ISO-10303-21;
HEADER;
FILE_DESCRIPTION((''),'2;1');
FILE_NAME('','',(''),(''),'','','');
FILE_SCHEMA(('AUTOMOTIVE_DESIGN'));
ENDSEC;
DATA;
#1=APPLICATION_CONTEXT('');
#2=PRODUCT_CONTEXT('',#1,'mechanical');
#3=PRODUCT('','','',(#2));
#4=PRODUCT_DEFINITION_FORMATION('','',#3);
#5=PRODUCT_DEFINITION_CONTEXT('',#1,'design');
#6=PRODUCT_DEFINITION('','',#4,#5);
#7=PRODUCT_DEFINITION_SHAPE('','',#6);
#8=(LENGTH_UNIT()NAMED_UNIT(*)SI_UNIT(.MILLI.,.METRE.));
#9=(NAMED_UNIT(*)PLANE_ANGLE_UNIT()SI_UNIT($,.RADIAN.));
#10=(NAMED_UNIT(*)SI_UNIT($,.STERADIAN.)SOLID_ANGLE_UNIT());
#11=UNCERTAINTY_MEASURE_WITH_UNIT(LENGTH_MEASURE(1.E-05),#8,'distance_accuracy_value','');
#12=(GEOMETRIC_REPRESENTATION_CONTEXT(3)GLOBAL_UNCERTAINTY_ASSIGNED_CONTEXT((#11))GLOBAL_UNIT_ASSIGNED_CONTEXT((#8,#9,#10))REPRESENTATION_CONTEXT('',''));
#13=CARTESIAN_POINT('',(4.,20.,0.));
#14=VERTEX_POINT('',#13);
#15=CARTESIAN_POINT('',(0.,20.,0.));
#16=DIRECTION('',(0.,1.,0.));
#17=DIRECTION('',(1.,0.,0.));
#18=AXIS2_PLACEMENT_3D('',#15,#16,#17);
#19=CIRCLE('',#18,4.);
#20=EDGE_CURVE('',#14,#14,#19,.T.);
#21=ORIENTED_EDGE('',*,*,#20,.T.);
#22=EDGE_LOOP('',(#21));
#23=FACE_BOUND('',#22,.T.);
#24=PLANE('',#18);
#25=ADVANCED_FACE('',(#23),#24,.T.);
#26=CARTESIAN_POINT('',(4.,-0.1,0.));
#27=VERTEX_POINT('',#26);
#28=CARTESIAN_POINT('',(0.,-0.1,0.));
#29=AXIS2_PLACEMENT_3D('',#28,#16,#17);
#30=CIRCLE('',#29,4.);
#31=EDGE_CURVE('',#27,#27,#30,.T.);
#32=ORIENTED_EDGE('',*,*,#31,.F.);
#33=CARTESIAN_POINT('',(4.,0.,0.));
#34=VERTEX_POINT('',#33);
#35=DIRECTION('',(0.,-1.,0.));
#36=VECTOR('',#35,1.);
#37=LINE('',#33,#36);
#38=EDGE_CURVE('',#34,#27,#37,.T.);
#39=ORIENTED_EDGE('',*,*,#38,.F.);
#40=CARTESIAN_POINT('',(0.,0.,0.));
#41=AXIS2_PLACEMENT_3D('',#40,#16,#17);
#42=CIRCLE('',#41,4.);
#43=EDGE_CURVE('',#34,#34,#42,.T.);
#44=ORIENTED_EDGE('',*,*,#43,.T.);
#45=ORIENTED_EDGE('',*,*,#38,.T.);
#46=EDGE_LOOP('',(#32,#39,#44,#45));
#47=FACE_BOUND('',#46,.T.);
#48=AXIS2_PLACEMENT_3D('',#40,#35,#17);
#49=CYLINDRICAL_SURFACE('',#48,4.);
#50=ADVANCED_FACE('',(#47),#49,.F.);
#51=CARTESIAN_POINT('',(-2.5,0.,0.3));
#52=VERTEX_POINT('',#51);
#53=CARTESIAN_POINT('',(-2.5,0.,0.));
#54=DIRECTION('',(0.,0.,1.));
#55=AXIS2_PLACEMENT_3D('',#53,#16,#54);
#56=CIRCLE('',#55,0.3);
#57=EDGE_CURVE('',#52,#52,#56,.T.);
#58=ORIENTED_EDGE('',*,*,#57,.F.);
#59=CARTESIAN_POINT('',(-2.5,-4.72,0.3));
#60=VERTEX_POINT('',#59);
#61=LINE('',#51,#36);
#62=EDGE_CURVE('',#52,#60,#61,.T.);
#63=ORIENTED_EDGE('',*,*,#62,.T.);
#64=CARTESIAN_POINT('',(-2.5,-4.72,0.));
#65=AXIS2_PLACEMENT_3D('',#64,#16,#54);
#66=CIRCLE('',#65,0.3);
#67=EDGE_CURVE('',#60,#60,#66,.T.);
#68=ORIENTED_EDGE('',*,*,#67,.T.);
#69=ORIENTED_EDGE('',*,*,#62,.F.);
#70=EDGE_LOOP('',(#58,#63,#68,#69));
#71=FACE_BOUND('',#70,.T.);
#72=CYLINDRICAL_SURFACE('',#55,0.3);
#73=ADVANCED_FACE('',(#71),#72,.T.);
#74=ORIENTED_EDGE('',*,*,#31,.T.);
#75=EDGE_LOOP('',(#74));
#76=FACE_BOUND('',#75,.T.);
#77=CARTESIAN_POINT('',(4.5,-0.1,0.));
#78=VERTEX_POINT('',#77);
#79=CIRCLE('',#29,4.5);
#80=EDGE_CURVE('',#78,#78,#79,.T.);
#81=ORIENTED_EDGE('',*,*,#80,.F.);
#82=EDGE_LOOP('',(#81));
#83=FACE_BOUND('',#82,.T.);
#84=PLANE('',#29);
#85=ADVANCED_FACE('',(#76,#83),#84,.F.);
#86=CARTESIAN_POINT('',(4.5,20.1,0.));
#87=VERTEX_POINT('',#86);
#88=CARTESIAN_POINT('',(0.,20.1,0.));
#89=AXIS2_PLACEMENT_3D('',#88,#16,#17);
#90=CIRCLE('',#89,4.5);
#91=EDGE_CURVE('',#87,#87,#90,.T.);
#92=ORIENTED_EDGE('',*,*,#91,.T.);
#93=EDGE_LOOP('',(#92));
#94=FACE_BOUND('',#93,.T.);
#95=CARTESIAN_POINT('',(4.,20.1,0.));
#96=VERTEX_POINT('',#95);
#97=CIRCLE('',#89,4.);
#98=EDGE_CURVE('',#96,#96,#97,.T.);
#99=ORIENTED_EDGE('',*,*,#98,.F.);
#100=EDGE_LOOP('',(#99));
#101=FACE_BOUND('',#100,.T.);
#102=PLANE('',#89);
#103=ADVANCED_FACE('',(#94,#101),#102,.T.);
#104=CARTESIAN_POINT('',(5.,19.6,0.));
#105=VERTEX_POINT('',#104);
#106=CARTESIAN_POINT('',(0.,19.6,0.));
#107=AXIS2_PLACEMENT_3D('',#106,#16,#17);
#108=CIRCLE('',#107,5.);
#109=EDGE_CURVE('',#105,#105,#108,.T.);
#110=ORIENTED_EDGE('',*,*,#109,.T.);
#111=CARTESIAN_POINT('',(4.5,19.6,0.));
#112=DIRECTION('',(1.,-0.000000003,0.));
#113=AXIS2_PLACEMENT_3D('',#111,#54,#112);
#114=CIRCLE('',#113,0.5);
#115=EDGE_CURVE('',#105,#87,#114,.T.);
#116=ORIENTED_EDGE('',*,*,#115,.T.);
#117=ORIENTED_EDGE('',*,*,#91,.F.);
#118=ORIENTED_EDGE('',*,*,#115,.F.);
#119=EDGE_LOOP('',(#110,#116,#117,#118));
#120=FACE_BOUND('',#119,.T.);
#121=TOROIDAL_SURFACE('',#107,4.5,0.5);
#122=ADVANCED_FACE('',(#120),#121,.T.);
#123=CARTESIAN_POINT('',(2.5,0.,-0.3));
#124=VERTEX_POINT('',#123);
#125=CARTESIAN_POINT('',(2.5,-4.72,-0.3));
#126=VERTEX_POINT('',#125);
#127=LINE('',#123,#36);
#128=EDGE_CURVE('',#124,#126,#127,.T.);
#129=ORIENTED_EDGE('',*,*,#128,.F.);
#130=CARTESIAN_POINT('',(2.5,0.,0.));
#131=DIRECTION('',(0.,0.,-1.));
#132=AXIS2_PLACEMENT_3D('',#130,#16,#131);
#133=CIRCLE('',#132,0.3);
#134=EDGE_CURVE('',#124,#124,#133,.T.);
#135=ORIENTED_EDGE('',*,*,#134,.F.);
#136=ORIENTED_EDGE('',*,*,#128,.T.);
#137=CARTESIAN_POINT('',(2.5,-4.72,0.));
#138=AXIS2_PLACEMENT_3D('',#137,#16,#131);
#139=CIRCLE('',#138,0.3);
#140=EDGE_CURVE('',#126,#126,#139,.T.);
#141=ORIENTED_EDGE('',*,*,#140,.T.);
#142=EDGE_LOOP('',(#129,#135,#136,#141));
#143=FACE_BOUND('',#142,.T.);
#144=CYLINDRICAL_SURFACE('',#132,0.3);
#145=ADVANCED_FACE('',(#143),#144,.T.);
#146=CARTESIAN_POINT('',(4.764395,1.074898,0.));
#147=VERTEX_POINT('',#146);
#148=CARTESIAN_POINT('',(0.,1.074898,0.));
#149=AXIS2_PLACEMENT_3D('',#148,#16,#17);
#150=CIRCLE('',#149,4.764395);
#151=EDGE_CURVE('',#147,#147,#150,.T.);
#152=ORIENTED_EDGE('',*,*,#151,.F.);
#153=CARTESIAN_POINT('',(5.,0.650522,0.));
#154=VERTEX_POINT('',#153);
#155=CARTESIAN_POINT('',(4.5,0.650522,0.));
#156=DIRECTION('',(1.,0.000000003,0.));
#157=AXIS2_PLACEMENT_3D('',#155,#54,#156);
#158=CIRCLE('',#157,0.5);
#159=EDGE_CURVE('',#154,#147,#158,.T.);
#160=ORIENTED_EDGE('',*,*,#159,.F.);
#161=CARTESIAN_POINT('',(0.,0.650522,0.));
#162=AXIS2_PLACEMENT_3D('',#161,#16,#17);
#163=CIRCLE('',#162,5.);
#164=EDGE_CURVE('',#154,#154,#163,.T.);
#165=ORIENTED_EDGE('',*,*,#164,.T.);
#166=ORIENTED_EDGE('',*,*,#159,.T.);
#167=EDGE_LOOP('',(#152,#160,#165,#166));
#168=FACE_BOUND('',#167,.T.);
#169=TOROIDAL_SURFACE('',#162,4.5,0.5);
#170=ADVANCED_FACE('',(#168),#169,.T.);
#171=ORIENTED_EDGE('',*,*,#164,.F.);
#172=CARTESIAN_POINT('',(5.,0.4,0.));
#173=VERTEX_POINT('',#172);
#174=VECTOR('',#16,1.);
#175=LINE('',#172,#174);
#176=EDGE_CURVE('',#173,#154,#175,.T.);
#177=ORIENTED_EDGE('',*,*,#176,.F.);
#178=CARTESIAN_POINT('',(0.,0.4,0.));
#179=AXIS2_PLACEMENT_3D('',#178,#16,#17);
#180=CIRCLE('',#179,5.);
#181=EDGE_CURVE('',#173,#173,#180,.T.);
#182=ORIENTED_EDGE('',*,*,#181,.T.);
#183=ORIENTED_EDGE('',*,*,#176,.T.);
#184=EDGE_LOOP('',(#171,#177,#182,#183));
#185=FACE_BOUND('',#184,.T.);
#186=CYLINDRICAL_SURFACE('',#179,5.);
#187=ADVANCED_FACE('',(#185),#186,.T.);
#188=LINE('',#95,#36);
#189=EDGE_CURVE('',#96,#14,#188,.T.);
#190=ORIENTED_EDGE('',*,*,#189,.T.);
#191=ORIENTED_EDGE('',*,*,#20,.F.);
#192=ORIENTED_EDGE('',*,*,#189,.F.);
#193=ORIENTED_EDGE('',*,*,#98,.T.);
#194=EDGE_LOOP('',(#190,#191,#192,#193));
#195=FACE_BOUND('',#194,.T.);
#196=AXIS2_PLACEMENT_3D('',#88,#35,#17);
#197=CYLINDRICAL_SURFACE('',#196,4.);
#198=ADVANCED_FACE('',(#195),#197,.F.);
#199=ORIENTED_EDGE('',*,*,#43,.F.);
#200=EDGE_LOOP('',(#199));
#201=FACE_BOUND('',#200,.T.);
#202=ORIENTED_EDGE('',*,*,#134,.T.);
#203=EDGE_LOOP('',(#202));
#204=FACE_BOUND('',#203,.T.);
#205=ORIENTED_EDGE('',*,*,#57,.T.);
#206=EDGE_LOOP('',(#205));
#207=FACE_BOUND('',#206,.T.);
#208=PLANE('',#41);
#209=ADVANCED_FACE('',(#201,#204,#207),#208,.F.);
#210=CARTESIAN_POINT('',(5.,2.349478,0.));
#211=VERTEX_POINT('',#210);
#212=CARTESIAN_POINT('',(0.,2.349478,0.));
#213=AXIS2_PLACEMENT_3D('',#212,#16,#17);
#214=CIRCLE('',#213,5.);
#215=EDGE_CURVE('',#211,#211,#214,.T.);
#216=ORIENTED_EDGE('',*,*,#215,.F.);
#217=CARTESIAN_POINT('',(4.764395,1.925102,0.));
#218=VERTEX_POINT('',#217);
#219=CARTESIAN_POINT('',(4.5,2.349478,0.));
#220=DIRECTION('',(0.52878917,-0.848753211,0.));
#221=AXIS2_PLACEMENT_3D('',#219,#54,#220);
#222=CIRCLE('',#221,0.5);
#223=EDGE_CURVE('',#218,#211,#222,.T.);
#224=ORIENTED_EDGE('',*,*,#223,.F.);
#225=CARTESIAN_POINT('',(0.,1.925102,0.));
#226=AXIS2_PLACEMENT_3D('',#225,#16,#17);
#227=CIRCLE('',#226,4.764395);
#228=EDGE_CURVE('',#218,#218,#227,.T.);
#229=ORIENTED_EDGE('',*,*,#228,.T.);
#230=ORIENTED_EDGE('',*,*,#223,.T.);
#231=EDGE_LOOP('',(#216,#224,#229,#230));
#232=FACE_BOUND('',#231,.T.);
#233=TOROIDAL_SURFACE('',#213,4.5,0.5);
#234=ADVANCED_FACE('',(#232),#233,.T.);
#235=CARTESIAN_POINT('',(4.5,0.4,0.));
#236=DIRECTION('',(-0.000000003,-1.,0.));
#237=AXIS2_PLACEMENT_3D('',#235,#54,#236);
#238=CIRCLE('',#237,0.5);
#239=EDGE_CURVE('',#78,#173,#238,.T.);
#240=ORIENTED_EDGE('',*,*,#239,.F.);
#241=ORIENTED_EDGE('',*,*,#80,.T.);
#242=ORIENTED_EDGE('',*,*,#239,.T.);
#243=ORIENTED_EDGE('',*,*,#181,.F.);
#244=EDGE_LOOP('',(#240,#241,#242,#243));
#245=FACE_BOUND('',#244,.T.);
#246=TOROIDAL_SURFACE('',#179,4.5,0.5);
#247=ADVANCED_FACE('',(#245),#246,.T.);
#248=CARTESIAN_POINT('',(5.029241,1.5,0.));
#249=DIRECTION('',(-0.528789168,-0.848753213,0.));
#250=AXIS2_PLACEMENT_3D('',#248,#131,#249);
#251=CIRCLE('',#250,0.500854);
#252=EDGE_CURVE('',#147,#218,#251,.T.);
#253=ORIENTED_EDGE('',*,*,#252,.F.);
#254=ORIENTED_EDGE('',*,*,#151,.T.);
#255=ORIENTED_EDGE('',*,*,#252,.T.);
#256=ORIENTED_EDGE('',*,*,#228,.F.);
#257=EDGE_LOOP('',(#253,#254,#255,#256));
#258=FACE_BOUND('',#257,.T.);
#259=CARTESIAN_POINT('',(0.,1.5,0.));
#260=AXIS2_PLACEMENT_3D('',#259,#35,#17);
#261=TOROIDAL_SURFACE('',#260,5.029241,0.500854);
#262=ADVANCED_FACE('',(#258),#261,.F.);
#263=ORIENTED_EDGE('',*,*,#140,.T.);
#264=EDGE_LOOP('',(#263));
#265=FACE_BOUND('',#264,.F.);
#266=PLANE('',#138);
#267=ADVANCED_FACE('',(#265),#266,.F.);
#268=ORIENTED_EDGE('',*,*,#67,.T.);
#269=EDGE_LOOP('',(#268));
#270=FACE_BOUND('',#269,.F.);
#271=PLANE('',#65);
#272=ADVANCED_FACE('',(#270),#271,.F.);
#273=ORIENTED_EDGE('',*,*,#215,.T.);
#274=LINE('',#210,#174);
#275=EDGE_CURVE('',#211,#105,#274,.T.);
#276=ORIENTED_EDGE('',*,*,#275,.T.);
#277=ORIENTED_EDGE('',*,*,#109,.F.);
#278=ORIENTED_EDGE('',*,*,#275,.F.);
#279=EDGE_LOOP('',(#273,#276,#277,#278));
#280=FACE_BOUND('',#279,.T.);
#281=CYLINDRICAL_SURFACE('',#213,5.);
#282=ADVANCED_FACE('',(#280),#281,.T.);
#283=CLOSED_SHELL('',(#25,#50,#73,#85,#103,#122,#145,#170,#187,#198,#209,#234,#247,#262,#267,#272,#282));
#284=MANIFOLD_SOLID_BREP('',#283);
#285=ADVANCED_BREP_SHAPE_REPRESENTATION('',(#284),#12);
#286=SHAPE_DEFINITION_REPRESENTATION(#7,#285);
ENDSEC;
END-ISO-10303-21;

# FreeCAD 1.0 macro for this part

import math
import FreeCAD as App
import Part
import Sketcher

doc = App.newDocument("Part")
body = doc.addObject("PartDesign::Body", "Body")

sketch1 = body.newObject("Sketcher::SketchObject", "Sketch")
sketch1.AttachmentSupport = (doc.getObject("XZ_Plane"), [""])
sketch1.MapMode = "FlatFace"
sketch1.addGeometry(Part.Circle(App.Vector(-2.5, 0, 0), App.Vector(0, 0, 1), 0.3), False)
sketch1.addConstraint(Sketcher.Constraint("PointOnObject", 0, 3, -1))
sketch1.addConstraint(Sketcher.Constraint("Diameter", 0, 0.6))
sketch1.addConstraint(Sketcher.Constraint("DistanceX", 0, 3, -1, 1, 2.5))
pad1 = body.newObject("PartDesign::Pad", "Pad")
pad1.Profile = sketch1
pad1.Length = 4.72
body2 = doc.addObject("PartDesign::Body", "Body001")

sketch2 = body2.newObject("Sketcher::SketchObject", "Sketch001")
sketch2.AttachmentSupport = (doc.getObject("XZ_Plane001"), [""])
sketch2.MapMode = "FlatFace"
sketch2.addGeometry(Part.Circle(App.Vector(2.5, 0, 0), App.Vector(0, 0, 1), 0.3), False)
sketch2.addConstraint(Sketcher.Constraint("PointOnObject", 0, 3, -1))
sketch2.addConstraint(Sketcher.Constraint("Diameter", 0, 0.6))
sketch2.addConstraint(Sketcher.Constraint("DistanceX", -1, 1, 0, 3, 2.5))
pad2 = body2.newObject("PartDesign::Pad", "Pad001")
pad2.Profile = sketch2
pad2.Length = 4.72
body.AllowCompound = True
doc.recompute()

boolean = body.newObject("PartDesign::Boolean", "Boolean")
boolean.Type = "Fuse"
boolean.addObjects([body2])

sketch3 = body.newObject("Sketcher::SketchObject", "Sketch002")
sketch3.AttachmentSupport = (doc.getObject("XY_Plane"), [""])
sketch3.MapMode = "FlatFace"
sketch3.addGeometry(Part.LineSegment(App.Vector(5, 0.4, 0), App.Vector(5, 0.65, 0)), False)
sketch3.addGeometry(Part.ArcOfCircle(Part.Circle(App.Vector(4.5, 0.65, 0), App.Vector(0, 0, 1), 0.5), math.radians(0), math.radians(58)), False)
sketch3.addGeometry(Part.ArcOfCircle(Part.Circle(App.Vector(5.03, 1.5, 0), App.Vector(0, 0, 1), 0.5), math.radians(122), math.radians(238)), False)
sketch3.addGeometry(Part.ArcOfCircle(Part.Circle(App.Vector(4.5, 2.35, 0), App.Vector(0, 0, 1), 0.5), math.radians(-58), math.radians(0)), False)
sketch3.addGeometry(Part.LineSegment(App.Vector(5, 2.35, 0), App.Vector(5, 19.6, 0)), False)
sketch3.addGeometry(Part.ArcOfCircle(Part.Circle(App.Vector(4.5, 19.6, 0), App.Vector(0, 0, 1), 0.5), math.radians(0), math.radians(90)), False)
sketch3.addGeometry(Part.LineSegment(App.Vector(4.5, 20.1, 0), App.Vector(4, 20.1, 0)), False)
sketch3.addGeometry(Part.LineSegment(App.Vector(4, 20.1, 0), App.Vector(4, 20, 0)), False)
sketch3.addGeometry(Part.LineSegment(App.Vector(4, 20, 0), App.Vector(0, 20, 0)), False)
sketch3.addGeometry(Part.LineSegment(App.Vector(0, 20, 0), App.Vector(0, 0, 0)), False)
sketch3.addGeometry(Part.LineSegment(App.Vector(0, 0, 0), App.Vector(4, 0, 0)), False)
sketch3.addGeometry(Part.LineSegment(App.Vector(4, 0, 0), App.Vector(4, -0.1, 0)), False)
sketch3.addGeometry(Part.LineSegment(App.Vector(4, -0.1, 0), App.Vector(4.5, -0.1, 0)), False)
sketch3.addGeometry(Part.ArcOfCircle(Part.Circle(App.Vector(4.5, 0.4, 0), App.Vector(0, 0, 1), 0.5), math.radians(-90), math.radians(0)), False)
sketch3.addConstraint(Sketcher.Constraint("Tangent", 0, 2, 1, 1))
sketch3.addConstraint(Sketcher.Constraint("Tangent", 1, 2, 2, 2))
sketch3.addConstraint(Sketcher.Constraint("Tangent", 2, 1, 3, 1))
sketch3.addConstraint(Sketcher.Constraint("Tangent", 3, 2, 4, 1))
sketch3.addConstraint(Sketcher.Constraint("Tangent", 4, 2, 5, 1))
sketch3.addConstraint(Sketcher.Constraint("Tangent", 5, 2, 6, 1))
sketch3.addConstraint(Sketcher.Constraint("Coincident", 6, 2, 7, 1))
sketch3.addConstraint(Sketcher.Constraint("Coincident", 7, 2, 8, 1))
sketch3.addConstraint(Sketcher.Constraint("Coincident", 8, 2, 9, 1))
sketch3.addConstraint(Sketcher.Constraint("Coincident", 9, 2, 10, 1))
sketch3.addConstraint(Sketcher.Constraint("Coincident", 10, 2, 11, 1))
sketch3.addConstraint(Sketcher.Constraint("Coincident", 11, 2, 12, 1))
sketch3.addConstraint(Sketcher.Constraint("Tangent", 12, 2, 13, 1))
sketch3.addConstraint(Sketcher.Constraint("Tangent", 13, 2, 0, 1))
sketch3.addConstraint(Sketcher.Constraint("Vertical", 0))
sketch3.addConstraint(Sketcher.Constraint("Vertical", 4))
sketch3.addConstraint(Sketcher.Constraint("Horizontal", 6))
sketch3.addConstraint(Sketcher.Constraint("Vertical", 7))
sketch3.addConstraint(Sketcher.Constraint("Horizontal", 8))
sketch3.addConstraint(Sketcher.Constraint("Vertical", 9))
sketch3.addConstraint(Sketcher.Constraint("Horizontal", 10))
sketch3.addConstraint(Sketcher.Constraint("Vertical", 11))
sketch3.addConstraint(Sketcher.Constraint("Horizontal", 12))
sketch3.addConstraint(Sketcher.Constraint("Coincident", 9, 2, -1, 1))
sketch3.addConstraint(Sketcher.Constraint("Equal", 1, 3))
sketch3.addConstraint(Sketcher.Constraint("Equal", 3, 5))
sketch3.addConstraint(Sketcher.Constraint("Equal", 5, 13))
sketch3.addConstraint(Sketcher.Constraint("Vertical", 1, 3, 3, 3))
sketch3.addConstraint(Sketcher.Constraint("Vertical", 7, 2, 10, 2))
sketch3.addConstraint(Sketcher.Constraint("Equal", 7, 11))
sketch3.addConstraint(Sketcher.Constraint("Radius", 1, 0.5))
sketch3.addConstraint(Sketcher.Constraint("DistanceX", 8, 2, 8, 1, 4.0))
sketch3.addConstraint(Sketcher.Constraint("DistanceY", 9, 2, 9, 1, 20.0))
sketch3.addConstraint(Sketcher.Constraint("DistanceX", 6, 2, 6, 1, 0.5))
sketch3.addConstraint(Sketcher.Constraint("DistanceY", 7, 2, 7, 1, 0.1))
sketch3.addConstraint(Sketcher.Constraint("DistanceY", -1, 1, 2, 3, 1.5))
sketch3.addConstraint(Sketcher.Constraint("Radius", 2, 0.500854))
sketch3.addConstraint(Sketcher.Constraint("DistanceY", 0, 1, 0, 2, 0.250522))
revolution = body.newObject("PartDesign::Revolution", "Revolution")
revolution.Profile = sketch3
revolution.ReferenceAxis = (sketch3, ["V_Axis"])
revolution.Angle = 360

doc.recompute()
